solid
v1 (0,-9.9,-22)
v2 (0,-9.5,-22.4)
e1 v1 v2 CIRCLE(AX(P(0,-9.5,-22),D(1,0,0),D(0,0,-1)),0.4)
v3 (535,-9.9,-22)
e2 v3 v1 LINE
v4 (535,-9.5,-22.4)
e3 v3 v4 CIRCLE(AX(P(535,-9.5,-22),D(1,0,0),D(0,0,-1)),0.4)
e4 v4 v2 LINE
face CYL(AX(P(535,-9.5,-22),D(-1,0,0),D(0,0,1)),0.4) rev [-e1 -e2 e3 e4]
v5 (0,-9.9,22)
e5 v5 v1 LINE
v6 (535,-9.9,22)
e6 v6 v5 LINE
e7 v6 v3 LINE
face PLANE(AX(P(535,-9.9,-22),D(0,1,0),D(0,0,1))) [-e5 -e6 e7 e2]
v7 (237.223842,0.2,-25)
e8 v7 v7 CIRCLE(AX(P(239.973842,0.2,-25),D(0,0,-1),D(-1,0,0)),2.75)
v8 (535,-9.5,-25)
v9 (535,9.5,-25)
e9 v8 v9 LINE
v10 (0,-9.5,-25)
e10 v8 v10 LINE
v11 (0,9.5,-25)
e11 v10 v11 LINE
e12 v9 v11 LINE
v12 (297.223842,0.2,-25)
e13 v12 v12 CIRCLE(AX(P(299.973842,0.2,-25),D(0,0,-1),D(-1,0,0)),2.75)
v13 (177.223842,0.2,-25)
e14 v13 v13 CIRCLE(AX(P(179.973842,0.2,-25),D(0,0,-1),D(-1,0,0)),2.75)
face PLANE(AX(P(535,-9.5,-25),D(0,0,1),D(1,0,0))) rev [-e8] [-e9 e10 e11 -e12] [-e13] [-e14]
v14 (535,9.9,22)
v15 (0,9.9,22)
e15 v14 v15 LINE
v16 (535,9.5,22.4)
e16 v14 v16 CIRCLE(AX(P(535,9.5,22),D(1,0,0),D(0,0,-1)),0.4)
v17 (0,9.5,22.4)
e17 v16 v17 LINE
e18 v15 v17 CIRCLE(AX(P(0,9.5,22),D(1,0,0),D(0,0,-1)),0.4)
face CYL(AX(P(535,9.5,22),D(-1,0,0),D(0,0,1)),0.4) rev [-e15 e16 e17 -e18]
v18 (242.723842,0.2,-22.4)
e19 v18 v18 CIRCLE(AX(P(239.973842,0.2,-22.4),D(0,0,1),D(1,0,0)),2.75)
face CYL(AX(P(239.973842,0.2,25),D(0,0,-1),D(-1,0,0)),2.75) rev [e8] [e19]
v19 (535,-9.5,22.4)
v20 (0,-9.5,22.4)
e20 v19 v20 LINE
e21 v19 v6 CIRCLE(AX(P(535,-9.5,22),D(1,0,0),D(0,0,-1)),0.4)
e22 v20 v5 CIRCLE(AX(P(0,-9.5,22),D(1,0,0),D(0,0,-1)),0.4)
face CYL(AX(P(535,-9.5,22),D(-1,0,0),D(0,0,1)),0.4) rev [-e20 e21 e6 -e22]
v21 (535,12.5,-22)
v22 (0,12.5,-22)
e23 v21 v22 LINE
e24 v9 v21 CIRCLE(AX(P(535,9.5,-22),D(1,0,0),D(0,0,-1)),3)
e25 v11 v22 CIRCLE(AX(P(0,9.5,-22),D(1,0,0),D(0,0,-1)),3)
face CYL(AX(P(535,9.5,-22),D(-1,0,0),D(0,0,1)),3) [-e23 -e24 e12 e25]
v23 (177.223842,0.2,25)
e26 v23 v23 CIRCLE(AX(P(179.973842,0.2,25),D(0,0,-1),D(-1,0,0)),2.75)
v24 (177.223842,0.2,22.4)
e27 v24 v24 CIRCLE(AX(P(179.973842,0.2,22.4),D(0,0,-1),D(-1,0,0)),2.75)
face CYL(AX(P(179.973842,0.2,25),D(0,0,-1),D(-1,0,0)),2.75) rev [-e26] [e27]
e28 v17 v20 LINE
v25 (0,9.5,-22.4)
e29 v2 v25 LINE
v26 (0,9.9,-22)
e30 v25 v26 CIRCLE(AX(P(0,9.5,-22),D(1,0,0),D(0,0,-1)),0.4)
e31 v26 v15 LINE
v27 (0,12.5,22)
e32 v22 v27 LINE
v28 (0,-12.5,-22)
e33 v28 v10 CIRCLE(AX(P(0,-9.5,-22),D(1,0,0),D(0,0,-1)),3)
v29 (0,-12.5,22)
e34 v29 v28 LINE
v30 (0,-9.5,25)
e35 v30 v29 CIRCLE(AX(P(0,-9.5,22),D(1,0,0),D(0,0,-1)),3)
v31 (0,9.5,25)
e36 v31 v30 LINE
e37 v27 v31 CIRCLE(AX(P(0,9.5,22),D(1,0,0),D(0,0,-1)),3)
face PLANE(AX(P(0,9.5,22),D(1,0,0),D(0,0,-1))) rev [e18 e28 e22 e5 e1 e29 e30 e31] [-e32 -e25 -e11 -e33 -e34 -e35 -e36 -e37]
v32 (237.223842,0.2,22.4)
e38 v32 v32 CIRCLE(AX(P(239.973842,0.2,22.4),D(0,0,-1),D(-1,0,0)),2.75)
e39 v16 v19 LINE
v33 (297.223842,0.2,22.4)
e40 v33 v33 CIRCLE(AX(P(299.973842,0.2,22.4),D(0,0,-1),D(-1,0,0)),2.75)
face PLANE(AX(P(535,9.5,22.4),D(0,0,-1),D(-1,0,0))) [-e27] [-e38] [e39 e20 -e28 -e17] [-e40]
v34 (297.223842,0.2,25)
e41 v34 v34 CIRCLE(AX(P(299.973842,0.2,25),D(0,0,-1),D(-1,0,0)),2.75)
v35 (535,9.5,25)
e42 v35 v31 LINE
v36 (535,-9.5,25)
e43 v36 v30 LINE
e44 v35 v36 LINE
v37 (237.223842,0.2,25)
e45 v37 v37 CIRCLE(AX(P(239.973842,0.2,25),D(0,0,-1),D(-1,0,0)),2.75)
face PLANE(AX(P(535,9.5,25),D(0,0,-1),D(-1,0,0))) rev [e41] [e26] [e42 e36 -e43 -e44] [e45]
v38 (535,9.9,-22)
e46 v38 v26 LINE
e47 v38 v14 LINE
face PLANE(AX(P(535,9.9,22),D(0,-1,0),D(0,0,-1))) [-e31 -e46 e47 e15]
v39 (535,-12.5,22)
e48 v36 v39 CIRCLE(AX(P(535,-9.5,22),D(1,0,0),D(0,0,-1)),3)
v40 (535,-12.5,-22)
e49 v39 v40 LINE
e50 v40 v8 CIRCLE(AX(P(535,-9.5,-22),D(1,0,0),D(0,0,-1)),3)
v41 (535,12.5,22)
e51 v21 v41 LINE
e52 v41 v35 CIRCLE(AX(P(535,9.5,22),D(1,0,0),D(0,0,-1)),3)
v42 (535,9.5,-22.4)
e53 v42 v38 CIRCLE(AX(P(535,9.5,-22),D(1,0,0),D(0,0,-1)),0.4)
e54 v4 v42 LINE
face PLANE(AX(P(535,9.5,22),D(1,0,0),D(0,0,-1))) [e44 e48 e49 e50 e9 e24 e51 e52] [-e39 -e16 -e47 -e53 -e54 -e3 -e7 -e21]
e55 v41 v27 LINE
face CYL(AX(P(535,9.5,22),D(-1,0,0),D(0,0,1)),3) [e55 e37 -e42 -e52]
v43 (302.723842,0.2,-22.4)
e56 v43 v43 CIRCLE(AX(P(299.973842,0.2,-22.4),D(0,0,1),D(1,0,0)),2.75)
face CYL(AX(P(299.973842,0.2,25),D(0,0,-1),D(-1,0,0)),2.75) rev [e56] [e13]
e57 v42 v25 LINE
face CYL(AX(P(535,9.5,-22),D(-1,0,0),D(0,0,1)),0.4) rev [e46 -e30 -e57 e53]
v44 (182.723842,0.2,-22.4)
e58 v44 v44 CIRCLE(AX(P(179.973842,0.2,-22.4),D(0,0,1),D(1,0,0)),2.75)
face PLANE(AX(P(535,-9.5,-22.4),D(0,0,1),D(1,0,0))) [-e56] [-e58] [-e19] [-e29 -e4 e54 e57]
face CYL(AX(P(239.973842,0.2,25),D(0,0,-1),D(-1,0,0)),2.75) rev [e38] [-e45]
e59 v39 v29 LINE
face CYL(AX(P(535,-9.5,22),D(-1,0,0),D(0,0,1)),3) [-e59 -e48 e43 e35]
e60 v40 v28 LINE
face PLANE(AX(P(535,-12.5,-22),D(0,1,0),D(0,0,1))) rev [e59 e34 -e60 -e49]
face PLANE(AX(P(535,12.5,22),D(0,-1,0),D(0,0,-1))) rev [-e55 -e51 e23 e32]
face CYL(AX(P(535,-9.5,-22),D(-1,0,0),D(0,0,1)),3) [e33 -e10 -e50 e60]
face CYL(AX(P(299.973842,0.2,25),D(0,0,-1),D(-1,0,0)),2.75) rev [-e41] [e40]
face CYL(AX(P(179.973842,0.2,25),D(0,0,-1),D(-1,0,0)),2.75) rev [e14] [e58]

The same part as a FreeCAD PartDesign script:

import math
import FreeCAD as App
import Part
import Sketcher

doc = App.newDocument("Part")
body = doc.addObject("PartDesign::Body", "Body")

# Sketch on YZ plane
sketch1 = doc.addObject("Sketcher::SketchObject", "Sketch")
body.addObject(sketch1)
sketch1.AttachmentSupport = (doc.YZ_Plane, [""])
sketch1.MapMode = "FlatFace"
sketch1.addGeometry([
    Part.LineSegment(App.Vector(-9.5, -25, 0), App.Vector(9.5, -25, 0)),  # 0
    Part.ArcOfCircle(Part.Circle(App.Vector(9.5, -22, 0), App.Vector(0, 0, 1), 3), math.radians(-90), math.radians(0)),  # 1
    Part.LineSegment(App.Vector(12.5, -22, 0), App.Vector(12.5, 22, 0)),  # 2
    Part.ArcOfCircle(Part.Circle(App.Vector(9.5, 22, 0), App.Vector(0, 0, 1), 3), math.radians(0), math.radians(90)),  # 3
    Part.LineSegment(App.Vector(9.5, 25, 0), App.Vector(-9.5, 25, 0)),  # 4
    Part.ArcOfCircle(Part.Circle(App.Vector(-9.5, 22, 0), App.Vector(0, 0, 1), 3), math.radians(90), math.radians(180)),  # 5
    Part.LineSegment(App.Vector(-12.5, 22, 0), App.Vector(-12.5, -22, 0)),  # 6
    Part.ArcOfCircle(Part.Circle(App.Vector(-9.5, -22, 0), App.Vector(0, 0, 1), 3), math.radians(180), math.radians(270)),  # 7
    Part.LineSegment(App.Vector(9.5, -22.4, 0), App.Vector(-9.5, -22.4, 0)),  # 8
    Part.ArcOfCircle(Part.Circle(App.Vector(-9.5, -22, 0), App.Vector(0, 0, 1), 0.4), math.radians(-180), math.radians(-90)),  # 9
    Part.LineSegment(App.Vector(-9.9, -22, 0), App.Vector(-9.9, 22, 0)),  # 10
    Part.ArcOfCircle(Part.Circle(App.Vector(-9.5, 22, 0), App.Vector(0, 0, 1), 0.4), math.radians(90), math.radians(180)),  # 11
    Part.LineSegment(App.Vector(-9.5, 22.4, 0), App.Vector(9.5, 22.4, 0)),  # 12
    Part.ArcOfCircle(Part.Circle(App.Vector(9.5, 22, 0), App.Vector(0, 0, 1), 0.4), math.radians(0), math.radians(90)),  # 13
    Part.LineSegment(App.Vector(9.9, 22, 0), App.Vector(9.9, -22, 0)),  # 14
    Part.ArcOfCircle(Part.Circle(App.Vector(9.5, -22, 0), App.Vector(0, 0, 1), 0.4), math.radians(-90), math.radians(0)),  # 15
], False)
sketch1.addConstraint([
    Sketcher.Constraint("Tangent", 0, 2, 1, 1),
    Sketcher.Constraint("Tangent", 1, 2, 2, 1),
    Sketcher.Constraint("Tangent", 2, 2, 3, 1),
    Sketcher.Constraint("Tangent", 3, 2, 4, 1),
    Sketcher.Constraint("Tangent", 4, 2, 5, 1),
    Sketcher.Constraint("Tangent", 5, 2, 6, 1),
    Sketcher.Constraint("Tangent", 6, 2, 7, 1),
    Sketcher.Constraint("Tangent", 7, 2, 0, 1),
    Sketcher.Constraint("Tangent", 8, 2, 9, 2),
    Sketcher.Constraint("Tangent", 9, 1, 10, 1),
    Sketcher.Constraint("Tangent", 10, 2, 11, 2),
    Sketcher.Constraint("Tangent", 11, 1, 12, 1),
    Sketcher.Constraint("Tangent", 12, 2, 13, 2),
    Sketcher.Constraint("Tangent", 13, 1, 14, 1),
    Sketcher.Constraint("Tangent", 14, 2, 15, 2),
    Sketcher.Constraint("Tangent", 15, 1, 8, 1),
    Sketcher.Constraint("Horizontal", 0),
    Sketcher.Constraint("Vertical", 2),
    Sketcher.Constraint("Horizontal", 4),
    Sketcher.Constraint("Vertical", 6),
    Sketcher.Constraint("Horizontal", 8),
    Sketcher.Constraint("Vertical", 10),
    Sketcher.Constraint("Horizontal", 12),
    Sketcher.Constraint("Vertical", 14),
    Sketcher.Constraint("Coincident", 9, 3, 7, 3),
    Sketcher.Constraint("Coincident", 11, 3, 5, 3),
    Sketcher.Constraint("Coincident", 13, 3, 3, 3),
    Sketcher.Constraint("Equal", 1, 3),
    Sketcher.Constraint("Equal", 3, 5),
    Sketcher.Constraint("Equal", 5, 7),
    Sketcher.Constraint("Equal", 13, 15),
    Sketcher.Constraint("Symmetric", 1, 3, 5, 3, -1, 1),
    Sketcher.Constraint("Radius", 1, 3.0),
    Sketcher.Constraint("Radius", 9, 0.4),
    Sketcher.Constraint("DistanceX", 0, 1, 0, 2, 19.0),
    Sketcher.Constraint("DistanceY", 2, 1, 2, 2, 44.0),
])
pad1 = doc.addObject("PartDesign::Pad", "Pad")
body.addObject(pad1)
pad1.Profile = sketch1
pad1.Length = 535

# Sketch on XY plane
sketch2 = doc.addObject("Sketcher::SketchObject", "Sketch001")
body.addObject(sketch2)
sketch2.AttachmentSupport = (doc.XY_Plane, [""])
sketch2.MapMode = "FlatFace"
sketch2.AttachmentOffset = App.Placement(App.Vector(0, 0, -25), App.Rotation())
sketch2.addGeometry([
    Part.Circle(App.Vector(180, 0.2, 0), App.Vector(0, 0, 1), 2.8),
    Part.Circle(App.Vector(240, 0.2, 0), App.Vector(0, 0, 1), 2.8),
    Part.Circle(App.Vector(300, 0.2, 0), App.Vector(0, 0, 1), 2.8),
], False)
sketch2.addConstraint([
    Sketcher.Constraint("Equal", 0, 1),
    Sketcher.Constraint("Equal", 1, 2),
    Sketcher.Constraint("Horizontal", 0, 3, 1, 3),
    Sketcher.Constraint("Horizontal", 1, 3, 2, 3),
    Sketcher.Constraint("Diameter", 0, 5.5),
    Sketcher.Constraint("DistanceX", 0, 3, 1, 3, 60.0),
    Sketcher.Constraint("DistanceX", 1, 3, 2, 3, 60.0),
    Sketcher.Constraint("DistanceY", -1, 1, 0, 3, 0.2),
    Sketcher.Constraint("DistanceX", -1, 1, 0, 3, 179.973842),
])
pocket1 = doc.addObject("PartDesign::Pocket", "Pocket")
body.addObject(pocket1)
pocket1.Profile = sketch2
pocket1.Type = "ThroughAll"
pocket1.Reversed = True

doc.recompute()
